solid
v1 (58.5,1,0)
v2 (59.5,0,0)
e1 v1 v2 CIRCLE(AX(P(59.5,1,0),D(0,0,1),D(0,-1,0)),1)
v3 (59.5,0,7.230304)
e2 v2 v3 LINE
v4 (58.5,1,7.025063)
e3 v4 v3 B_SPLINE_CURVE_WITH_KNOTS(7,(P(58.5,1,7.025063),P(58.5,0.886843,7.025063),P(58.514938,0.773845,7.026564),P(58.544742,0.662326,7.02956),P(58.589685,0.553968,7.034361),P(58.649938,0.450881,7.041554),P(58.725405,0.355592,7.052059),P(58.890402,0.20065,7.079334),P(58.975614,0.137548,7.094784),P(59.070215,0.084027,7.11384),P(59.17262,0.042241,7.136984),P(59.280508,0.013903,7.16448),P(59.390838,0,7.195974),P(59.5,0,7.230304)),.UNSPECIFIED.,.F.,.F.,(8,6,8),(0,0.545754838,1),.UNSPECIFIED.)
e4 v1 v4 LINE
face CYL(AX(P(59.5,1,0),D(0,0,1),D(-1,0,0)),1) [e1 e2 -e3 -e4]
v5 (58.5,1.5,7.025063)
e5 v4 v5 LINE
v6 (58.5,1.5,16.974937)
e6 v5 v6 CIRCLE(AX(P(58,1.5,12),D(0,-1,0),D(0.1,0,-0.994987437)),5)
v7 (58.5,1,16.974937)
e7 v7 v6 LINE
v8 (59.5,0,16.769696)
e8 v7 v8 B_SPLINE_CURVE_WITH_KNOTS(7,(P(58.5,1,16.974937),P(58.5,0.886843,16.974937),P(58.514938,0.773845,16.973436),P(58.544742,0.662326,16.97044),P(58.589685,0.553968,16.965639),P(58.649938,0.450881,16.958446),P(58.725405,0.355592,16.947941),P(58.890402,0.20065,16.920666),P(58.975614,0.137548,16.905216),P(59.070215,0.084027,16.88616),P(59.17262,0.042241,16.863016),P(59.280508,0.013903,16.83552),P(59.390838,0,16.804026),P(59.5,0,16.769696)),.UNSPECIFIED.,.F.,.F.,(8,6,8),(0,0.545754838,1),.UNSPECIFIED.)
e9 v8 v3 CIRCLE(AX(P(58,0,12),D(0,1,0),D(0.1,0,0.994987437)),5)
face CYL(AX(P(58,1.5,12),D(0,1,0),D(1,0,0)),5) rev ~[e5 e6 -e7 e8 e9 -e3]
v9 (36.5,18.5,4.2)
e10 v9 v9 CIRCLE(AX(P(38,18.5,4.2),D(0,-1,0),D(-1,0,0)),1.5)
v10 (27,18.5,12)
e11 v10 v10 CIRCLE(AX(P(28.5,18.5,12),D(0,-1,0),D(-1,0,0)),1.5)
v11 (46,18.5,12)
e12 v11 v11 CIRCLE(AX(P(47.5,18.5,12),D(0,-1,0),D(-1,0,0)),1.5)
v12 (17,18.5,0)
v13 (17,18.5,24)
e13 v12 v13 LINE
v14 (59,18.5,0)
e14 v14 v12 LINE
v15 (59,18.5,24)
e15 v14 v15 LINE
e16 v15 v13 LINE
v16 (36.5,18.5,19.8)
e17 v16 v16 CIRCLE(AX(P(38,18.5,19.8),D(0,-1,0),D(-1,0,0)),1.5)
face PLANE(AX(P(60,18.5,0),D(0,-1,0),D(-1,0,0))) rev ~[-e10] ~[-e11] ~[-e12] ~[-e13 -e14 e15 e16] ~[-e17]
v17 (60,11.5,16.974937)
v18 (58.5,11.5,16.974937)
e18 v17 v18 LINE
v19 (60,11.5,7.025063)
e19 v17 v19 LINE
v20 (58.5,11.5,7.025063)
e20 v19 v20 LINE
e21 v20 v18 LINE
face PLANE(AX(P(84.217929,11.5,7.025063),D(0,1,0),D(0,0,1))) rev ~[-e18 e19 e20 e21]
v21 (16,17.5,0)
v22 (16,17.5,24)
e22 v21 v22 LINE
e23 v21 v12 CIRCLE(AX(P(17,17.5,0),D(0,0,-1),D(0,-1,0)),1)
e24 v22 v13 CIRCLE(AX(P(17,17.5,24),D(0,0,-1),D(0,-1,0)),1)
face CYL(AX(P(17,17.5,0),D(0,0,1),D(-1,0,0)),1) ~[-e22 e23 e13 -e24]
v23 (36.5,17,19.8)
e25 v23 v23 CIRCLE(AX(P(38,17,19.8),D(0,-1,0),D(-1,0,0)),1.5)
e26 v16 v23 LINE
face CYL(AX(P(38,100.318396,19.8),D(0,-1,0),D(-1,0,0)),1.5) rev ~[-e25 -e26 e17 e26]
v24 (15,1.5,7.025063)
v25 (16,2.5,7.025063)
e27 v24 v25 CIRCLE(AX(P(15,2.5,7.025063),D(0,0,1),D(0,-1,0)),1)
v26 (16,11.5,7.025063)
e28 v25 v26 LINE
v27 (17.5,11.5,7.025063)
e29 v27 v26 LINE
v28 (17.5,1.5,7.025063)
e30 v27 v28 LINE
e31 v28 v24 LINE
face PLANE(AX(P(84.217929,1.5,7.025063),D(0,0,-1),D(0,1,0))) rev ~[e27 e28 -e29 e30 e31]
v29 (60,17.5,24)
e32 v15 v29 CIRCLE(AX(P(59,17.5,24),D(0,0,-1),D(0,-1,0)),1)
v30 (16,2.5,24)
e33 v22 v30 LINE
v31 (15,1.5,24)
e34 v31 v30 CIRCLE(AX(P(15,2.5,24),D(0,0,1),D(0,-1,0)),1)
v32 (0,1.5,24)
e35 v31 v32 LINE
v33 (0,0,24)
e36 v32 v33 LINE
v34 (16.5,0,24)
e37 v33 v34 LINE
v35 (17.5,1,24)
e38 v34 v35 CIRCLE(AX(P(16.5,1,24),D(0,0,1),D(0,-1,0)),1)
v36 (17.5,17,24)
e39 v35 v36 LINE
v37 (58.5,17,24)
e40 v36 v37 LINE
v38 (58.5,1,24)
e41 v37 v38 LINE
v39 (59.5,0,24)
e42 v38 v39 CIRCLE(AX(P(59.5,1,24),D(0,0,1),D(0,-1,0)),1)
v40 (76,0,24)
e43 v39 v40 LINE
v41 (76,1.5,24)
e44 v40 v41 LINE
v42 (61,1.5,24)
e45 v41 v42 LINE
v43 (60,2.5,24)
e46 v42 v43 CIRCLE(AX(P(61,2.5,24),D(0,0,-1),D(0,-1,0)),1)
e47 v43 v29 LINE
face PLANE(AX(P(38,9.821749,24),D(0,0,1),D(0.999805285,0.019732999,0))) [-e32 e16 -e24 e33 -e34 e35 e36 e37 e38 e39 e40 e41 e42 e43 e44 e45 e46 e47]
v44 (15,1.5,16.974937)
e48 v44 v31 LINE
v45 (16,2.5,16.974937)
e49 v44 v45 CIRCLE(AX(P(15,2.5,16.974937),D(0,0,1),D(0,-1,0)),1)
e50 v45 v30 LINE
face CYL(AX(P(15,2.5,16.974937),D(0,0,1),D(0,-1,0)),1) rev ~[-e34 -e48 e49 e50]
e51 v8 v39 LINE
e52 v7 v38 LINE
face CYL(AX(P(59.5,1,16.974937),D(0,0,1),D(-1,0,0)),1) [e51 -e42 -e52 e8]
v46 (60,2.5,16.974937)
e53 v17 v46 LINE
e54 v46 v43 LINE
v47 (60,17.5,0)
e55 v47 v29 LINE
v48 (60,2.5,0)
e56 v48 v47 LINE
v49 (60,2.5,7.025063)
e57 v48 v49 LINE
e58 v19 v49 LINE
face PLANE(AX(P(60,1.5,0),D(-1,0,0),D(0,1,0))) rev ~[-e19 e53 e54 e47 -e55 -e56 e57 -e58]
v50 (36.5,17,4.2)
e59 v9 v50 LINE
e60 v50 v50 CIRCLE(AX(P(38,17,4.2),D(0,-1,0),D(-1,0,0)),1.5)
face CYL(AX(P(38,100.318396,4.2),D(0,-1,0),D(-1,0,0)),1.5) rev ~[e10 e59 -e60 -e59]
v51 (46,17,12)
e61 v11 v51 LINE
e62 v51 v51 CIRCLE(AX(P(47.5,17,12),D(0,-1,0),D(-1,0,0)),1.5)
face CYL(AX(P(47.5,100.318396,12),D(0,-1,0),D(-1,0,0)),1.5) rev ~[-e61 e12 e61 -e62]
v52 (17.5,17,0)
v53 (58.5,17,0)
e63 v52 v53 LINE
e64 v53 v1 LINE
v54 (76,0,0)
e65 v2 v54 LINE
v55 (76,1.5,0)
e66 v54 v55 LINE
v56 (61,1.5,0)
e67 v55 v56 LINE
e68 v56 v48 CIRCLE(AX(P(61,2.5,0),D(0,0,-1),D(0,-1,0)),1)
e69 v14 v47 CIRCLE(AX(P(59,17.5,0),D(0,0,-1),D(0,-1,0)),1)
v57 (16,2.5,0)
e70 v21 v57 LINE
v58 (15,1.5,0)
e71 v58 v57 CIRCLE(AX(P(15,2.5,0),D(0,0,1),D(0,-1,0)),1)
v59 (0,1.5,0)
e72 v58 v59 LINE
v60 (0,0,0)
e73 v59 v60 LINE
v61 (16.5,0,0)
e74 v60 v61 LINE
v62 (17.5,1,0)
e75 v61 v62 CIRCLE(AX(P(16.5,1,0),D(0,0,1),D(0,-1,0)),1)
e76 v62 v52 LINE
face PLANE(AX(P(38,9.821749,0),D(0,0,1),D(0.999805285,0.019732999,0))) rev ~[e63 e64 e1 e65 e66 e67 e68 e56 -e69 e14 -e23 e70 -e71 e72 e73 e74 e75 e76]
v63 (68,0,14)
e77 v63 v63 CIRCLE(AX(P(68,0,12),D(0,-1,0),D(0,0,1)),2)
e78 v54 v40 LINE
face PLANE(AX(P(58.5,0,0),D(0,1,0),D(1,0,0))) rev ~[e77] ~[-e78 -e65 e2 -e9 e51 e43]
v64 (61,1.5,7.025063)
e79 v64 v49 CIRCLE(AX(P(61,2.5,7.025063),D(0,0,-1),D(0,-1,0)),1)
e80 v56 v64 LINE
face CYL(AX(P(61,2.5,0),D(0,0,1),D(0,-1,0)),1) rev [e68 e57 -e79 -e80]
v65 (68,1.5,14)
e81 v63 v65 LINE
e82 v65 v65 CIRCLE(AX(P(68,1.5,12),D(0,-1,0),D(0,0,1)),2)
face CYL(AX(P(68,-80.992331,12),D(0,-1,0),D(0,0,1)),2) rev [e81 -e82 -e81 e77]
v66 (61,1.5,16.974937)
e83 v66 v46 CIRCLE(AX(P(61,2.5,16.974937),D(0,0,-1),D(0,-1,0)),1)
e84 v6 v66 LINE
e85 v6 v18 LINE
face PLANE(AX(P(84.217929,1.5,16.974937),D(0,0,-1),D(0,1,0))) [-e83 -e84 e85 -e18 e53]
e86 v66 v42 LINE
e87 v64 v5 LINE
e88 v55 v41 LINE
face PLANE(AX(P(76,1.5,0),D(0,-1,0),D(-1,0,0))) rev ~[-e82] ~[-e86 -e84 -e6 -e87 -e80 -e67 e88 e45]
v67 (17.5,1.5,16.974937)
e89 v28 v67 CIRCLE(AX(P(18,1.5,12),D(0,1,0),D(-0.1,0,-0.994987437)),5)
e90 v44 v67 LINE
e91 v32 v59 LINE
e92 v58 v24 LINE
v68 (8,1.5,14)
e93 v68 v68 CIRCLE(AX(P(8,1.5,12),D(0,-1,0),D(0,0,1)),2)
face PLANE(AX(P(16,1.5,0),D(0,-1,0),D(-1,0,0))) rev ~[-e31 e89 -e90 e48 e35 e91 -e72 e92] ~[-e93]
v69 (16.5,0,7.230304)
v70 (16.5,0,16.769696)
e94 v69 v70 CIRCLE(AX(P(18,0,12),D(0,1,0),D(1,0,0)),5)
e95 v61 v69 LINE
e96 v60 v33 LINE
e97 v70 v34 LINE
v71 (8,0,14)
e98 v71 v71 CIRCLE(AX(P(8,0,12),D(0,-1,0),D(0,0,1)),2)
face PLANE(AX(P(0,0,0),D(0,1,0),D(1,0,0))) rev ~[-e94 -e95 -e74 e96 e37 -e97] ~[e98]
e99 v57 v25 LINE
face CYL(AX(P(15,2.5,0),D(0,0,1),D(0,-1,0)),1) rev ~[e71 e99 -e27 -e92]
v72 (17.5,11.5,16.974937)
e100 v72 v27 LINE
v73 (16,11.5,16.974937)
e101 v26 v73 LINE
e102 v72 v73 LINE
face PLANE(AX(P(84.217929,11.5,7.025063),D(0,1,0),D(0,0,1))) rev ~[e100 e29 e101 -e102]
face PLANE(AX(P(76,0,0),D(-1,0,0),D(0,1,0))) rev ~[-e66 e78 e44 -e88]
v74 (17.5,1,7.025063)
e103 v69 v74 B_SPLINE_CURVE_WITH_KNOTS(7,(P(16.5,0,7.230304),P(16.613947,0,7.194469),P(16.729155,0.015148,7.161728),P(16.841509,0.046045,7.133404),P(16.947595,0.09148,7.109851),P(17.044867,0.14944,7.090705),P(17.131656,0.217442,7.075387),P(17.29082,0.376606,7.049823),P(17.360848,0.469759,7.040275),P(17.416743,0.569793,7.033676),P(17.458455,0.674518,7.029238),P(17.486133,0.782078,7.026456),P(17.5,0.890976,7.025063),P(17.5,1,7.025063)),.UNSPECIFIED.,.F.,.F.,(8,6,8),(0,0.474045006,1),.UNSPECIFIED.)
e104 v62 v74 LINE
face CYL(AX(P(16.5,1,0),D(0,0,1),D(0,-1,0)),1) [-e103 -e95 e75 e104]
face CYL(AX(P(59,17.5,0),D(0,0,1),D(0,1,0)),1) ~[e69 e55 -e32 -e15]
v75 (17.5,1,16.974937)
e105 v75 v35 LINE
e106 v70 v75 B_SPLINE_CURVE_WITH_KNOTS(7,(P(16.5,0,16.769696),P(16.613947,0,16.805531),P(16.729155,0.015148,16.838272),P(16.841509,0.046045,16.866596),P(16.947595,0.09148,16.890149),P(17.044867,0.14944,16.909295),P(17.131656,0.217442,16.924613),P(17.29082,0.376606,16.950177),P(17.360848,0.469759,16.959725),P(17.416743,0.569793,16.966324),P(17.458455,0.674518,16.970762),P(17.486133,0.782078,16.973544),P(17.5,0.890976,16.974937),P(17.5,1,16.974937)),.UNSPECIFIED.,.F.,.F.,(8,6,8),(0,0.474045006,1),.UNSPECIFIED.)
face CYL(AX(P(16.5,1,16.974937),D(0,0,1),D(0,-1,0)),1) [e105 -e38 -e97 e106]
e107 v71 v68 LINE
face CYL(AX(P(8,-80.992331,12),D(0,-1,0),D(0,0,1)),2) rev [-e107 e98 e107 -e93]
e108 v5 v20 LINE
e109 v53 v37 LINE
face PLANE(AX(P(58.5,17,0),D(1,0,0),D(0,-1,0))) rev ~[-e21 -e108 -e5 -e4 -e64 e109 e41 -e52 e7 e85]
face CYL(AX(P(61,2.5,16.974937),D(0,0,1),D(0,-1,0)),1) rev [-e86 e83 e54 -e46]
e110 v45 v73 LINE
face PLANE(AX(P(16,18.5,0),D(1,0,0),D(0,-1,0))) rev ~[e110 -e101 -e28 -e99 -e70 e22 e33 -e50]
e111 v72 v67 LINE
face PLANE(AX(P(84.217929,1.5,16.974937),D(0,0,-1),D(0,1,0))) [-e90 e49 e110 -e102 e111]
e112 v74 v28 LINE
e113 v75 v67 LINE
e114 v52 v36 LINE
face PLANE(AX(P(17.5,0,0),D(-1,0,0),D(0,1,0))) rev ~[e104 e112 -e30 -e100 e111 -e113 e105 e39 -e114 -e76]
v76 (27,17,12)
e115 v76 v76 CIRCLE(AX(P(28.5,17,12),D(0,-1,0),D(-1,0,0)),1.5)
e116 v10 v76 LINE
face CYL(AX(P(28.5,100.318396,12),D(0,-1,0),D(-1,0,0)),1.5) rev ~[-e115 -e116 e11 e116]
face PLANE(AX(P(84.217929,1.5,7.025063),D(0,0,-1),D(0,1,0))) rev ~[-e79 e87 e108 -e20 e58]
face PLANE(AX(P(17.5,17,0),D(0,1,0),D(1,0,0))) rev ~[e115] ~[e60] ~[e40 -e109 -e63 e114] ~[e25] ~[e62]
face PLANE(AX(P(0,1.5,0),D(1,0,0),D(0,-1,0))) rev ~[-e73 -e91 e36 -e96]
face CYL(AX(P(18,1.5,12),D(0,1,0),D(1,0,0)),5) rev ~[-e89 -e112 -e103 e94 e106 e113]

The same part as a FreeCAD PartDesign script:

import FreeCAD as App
import Part
import Sketcher


def edges_at(feature, points):
    """Names of the edges that pass closest to the given points."""
    edges = feature.Shape.Edges
    near = lambda p: min(range(len(edges)), key=lambda i: edges[i].distToShape(Part.Vertex(*p))[0])
    return sorted({f"Edge{near(p) + 1}" for p in points})

doc = App.newDocument("Part")
body = doc.addObject("PartDesign::Body", "Body")

# Sketch on XY plane
sketch1 = body.newObject("Sketcher::SketchObject", "Sketch")
sketch1.AttachmentSupport = (doc.getObject("XY_Plane"), [""])
sketch1.MapMode = "FlatFace"
sketch1.addGeometry([
    Part.LineSegment(App.Vector(0, 0, 0), App.Vector(17.5, 0, 0)),  # 0
    Part.LineSegment(App.Vector(17.5, 0, 0), App.Vector(17.5, 17, 0)),  # 1
    Part.LineSegment(App.Vector(17.5, 17, 0), App.Vector(58.5, 17, 0)),  # 2
    Part.LineSegment(App.Vector(58.5, 17, 0), App.Vector(58.5, 0, 0)),  # 3
    Part.LineSegment(App.Vector(58.5, 0, 0), App.Vector(76, 0, 0)),  # 4
    Part.LineSegment(App.Vector(76, 0, 0), App.Vector(76, 1.5, 0)),  # 5
    Part.LineSegment(App.Vector(76, 1.5, 0), App.Vector(60, 1.5, 0)),  # 6
    Part.LineSegment(App.Vector(60, 1.5, 0), App.Vector(60, 18.5, 0)),  # 7
    Part.LineSegment(App.Vector(60, 18.5, 0), App.Vector(16, 18.5, 0)),  # 8
    Part.LineSegment(App.Vector(16, 18.5, 0), App.Vector(16, 1.5, 0)),  # 9
    Part.LineSegment(App.Vector(16, 1.5, 0), App.Vector(0, 1.5, 0)),  # 10
    Part.LineSegment(App.Vector(0, 1.5, 0), App.Vector(0, 0, 0)),  # 11
], False)
sketch1.addConstraint([
    Sketcher.Constraint("Coincident", 0, 2, 1, 1),
    Sketcher.Constraint("Coincident", 1, 2, 2, 1),
    Sketcher.Constraint("Coincident", 2, 2, 3, 1),
    Sketcher.Constraint("Coincident", 3, 2, 4, 1),
    Sketcher.Constraint("Coincident", 4, 2, 5, 1),
    Sketcher.Constraint("Coincident", 5, 2, 6, 1),
    Sketcher.Constraint("Coincident", 6, 2, 7, 1),
    Sketcher.Constraint("Coincident", 7, 2, 8, 1),
    Sketcher.Constraint("Coincident", 8, 2, 9, 1),
    Sketcher.Constraint("Coincident", 9, 2, 10, 1),
    Sketcher.Constraint("Coincident", 10, 2, 11, 1),
    Sketcher.Constraint("Coincident", 11, 2, 0, 1),
    Sketcher.Constraint("Horizontal", 0),
    Sketcher.Constraint("Vertical", 1),
    Sketcher.Constraint("Horizontal", 2),
    Sketcher.Constraint("Vertical", 3),
    Sketcher.Constraint("Horizontal", 4),
    Sketcher.Constraint("Vertical", 5),
    Sketcher.Constraint("Horizontal", 6),
    Sketcher.Constraint("Vertical", 7),
    Sketcher.Constraint("Horizontal", 8),
    Sketcher.Constraint("Vertical", 9),
    Sketcher.Constraint("Horizontal", 10),
    Sketcher.Constraint("Vertical", 11),
    Sketcher.Constraint("Coincident", 11, 2, -1, 1),
    Sketcher.Constraint("PointOnObject", 3, 2, -1),
    Sketcher.Constraint("Horizontal", 6, 2, 9, 2),
    Sketcher.Constraint("Equal", 0, 4),
    Sketcher.Constraint("Equal", 6, 10),
    Sketcher.Constraint("Equal", 3, 7),
    Sketcher.Constraint("DistanceX", 2, 1, 2, 2, 41.0),
    Sketcher.Constraint("DistanceX", 6, 2, 6, 1, 16.0),
    Sketcher.Constraint("DistanceX", 8, 2, 8, 1, 44.0),
    Sketcher.Constraint("DistanceY", 1, 1, 1, 2, 17.0),
    Sketcher.Constraint("DistanceY", 5, 1, 5, 2, 1.5),
])
pad1 = body.newObject("PartDesign::Pad", "Pad")
pad1.Profile = sketch1
pad1.Length = 24

# Sketch on XZ plane
sketch2 = body.newObject("Sketcher::SketchObject", "Sketch001")
sketch2.AttachmentSupport = (doc.getObject("XZ_Plane"), [""])
sketch2.MapMode = "FlatFace"
sketch2.AttachmentOffset = App.Placement(App.Vector(0, 0, -1.5), App.Rotation())
sketch2.addGeometry([
    Part.Circle(App.Vector(8, 12, 0), App.Vector(0, 0, 1), 2),
    Part.Circle(App.Vector(68, 12, 0), App.Vector(0, 0, 1), 2),
], False)
sketch2.addConstraint([
    Sketcher.Constraint("Equal", 0, 1),
    Sketcher.Constraint("Horizontal", 0, 3, 1, 3),
    Sketcher.Constraint("Diameter", 0, 4.0),
    Sketcher.Constraint("DistanceX", -1, 1, 0, 3, 8.0),
    Sketcher.Constraint("DistanceY", -1, 1, 0, 3, 12.0),
    Sketcher.Constraint("DistanceX", -1, 1, 1, 3, 68.0),
])
pocket1 = body.newObject("PartDesign::Pocket", "Pocket")
pocket1.Profile = sketch2
pocket1.Type = "ThroughAll"
pocket1.Midplane = True

# Sketch on XZ plane
sketch3 = body.newObject("Sketcher::SketchObject", "Sketch002")
sketch3.AttachmentSupport = (doc.getObject("XZ_Plane"), [""])
sketch3.MapMode = "FlatFace"
sketch3.AttachmentOffset = App.Placement(App.Vector(0, 0, -18.5), App.Rotation())
sketch3.addGeometry([
    Part.Circle(App.Vector(28.5, 12, 0), App.Vector(0, 0, 1), 1.5),
    Part.Circle(App.Vector(47.5, 12, 0), App.Vector(0, 0, 1), 1.5),
    Part.Circle(App.Vector(38, 19.8, 0), App.Vector(0, 0, 1), 1.5),
    Part.Circle(App.Vector(38, 4.2, 0), App.Vector(0, 0, 1), 1.5),
], False)
sketch3.addConstraint([
    Sketcher.Constraint("Equal", 0, 1),
    Sketcher.Constraint("Equal", 1, 2),
    Sketcher.Constraint("Equal", 2, 3),
    Sketcher.Constraint("Horizontal", 0, 3, 1, 3),
    Sketcher.Constraint("Vertical", 2, 3, 3, 3),
    Sketcher.Constraint("Diameter", 0, 3.0),
    Sketcher.Constraint("DistanceY", -1, 1, 0, 3, 12.0),
    Sketcher.Constraint("DistanceX", -1, 1, 2, 3, 38.0),
    Sketcher.Constraint("DistanceX", 0, 3, 1, 3, 19.0),
    Sketcher.Constraint("DistanceX", -1, 1, 0, 3, 28.5),
    Sketcher.Constraint("DistanceY", -1, 1, 2, 3, 19.8),
    Sketcher.Constraint("DistanceY", -1, 1, 3, 3, 4.2),
])
doc.recompute()
hole = body.newObject("PartDesign::Hole", "Hole")
hole.Profile = sketch3
hole.ThreadType = "None"
hole.Diameter = 3
hole.DepthType = "ThroughAll"
hole.Reversed = True

# Sketch on XZ plane
sketch4 = body.newObject("Sketcher::SketchObject", "Sketch003")
sketch4.AttachmentSupport = (doc.getObject("XZ_Plane"), [""])
sketch4.MapMode = "FlatFace"
sketch4.AttachmentOffset = App.Placement(App.Vector(0, 0, -1.5), App.Rotation())
sketch4.addGeometry([
    Part.Circle(App.Vector(18, 12, 0), App.Vector(0, 0, 1), 5),
    Part.Circle(App.Vector(58, 12, 0), App.Vector(0, 0, 1), 5),
], False)
sketch4.addConstraint([
    Sketcher.Constraint("Equal", 0, 1),
    Sketcher.Constraint("Horizontal", 0, 3, 1, 3),
    Sketcher.Constraint("Diameter", 0, 10.0),
    Sketcher.Constraint("DistanceX", -1, 1, 0, 3, 18.0),
    Sketcher.Constraint("DistanceY", -1, 1, 0, 3, 12.0),
    Sketcher.Constraint("DistanceX", -1, 1, 1, 3, 58.0),
])
pocket2 = body.newObject("PartDesign::Pocket", "Pocket001")
pocket2.Profile = sketch4
pocket2.Length = 1.5
pocket2.Reversed = True

# Sketch on YZ plane
sketch5 = body.newObject("Sketcher::SketchObject", "Sketch004")
sketch5.AttachmentSupport = (doc.getObject("YZ_Plane"), [""])
sketch5.MapMode = "FlatFace"
sketch5.AttachmentOffset = App.Placement(App.Vector(0, 0, 16), App.Rotation())
sketch5.addGeometry([
    Part.LineSegment(App.Vector(12, 7, 0), App.Vector(2, 7, 0)),
    Part.LineSegment(App.Vector(2, 7, 0), App.Vector(2, 17, 0)),
    Part.LineSegment(App.Vector(2, 17, 0), App.Vector(12, 17, 0)),
    Part.LineSegment(App.Vector(12, 17, 0), App.Vector(12, 7, 0)),
], False)
sketch5.addConstraint([
    Sketcher.Constraint("Coincident", 0, 2, 1, 1),
    Sketcher.Constraint("Coincident", 1, 2, 2, 1),
    Sketcher.Constraint("Coincident", 2, 2, 3, 1),
    Sketcher.Constraint("Coincident", 3, 2, 0, 1),
    Sketcher.Constraint("Horizontal", 0),
    Sketcher.Constraint("Vertical", 1),
    Sketcher.Constraint("Horizontal", 2),
    Sketcher.Constraint("Vertical", 3),
    Sketcher.Constraint("DistanceX", 0, 2, 0, 1, 10.0),
    Sketcher.Constraint("DistanceX", -1, 1, 0, 2, 1.5),
    Sketcher.Constraint("DistanceY", 1, 1, 1, 2, 9.949874),
    Sketcher.Constraint("DistanceY", -1, 1, 0, 2, 7.025063),
])
pocket3 = body.newObject("PartDesign::Pocket", "Pocket002")
pocket3.Profile = sketch5
pocket3.Type = "ThroughAll"
pocket3.Midplane = True
doc.recompute()

fillet = body.newObject("PartDesign::Fillet", "Fillet")
fillet.Base = (pocket3, edges_at(pocket3, [
    (17.5, 0, 3.513),
    (17.5, 0, 20.487),
    (58.5, 0, 3.513),
    (58.5, 0, 20.487),
    (16, 18.5, 12),
    (60, 18.5, 12),
    (60, 1.5, 20.487),
    (60, 1.5, 3.513),
    (16, 1.5, 20.487),
    (16, 1.5, 3.513),
]))
fillet.Radius = 1

doc.recompute()
